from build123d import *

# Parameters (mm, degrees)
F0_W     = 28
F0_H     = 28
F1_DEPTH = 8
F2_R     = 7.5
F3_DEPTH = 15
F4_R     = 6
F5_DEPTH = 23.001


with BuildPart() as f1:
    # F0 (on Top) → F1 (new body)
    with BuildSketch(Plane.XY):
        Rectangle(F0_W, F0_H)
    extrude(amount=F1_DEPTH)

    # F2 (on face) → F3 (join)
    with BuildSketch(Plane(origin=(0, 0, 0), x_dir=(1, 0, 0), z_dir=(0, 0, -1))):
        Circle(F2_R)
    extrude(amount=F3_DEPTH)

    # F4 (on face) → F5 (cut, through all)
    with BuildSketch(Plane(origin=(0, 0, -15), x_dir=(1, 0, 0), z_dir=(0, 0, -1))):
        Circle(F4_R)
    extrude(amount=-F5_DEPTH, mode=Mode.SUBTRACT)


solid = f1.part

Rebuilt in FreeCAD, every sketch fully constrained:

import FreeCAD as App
import Part
import Sketcher

V = App.Vector
Q = App.Units.Quantity

doc = App.newDocument("Part")
body = doc.addObject("PartDesign::Body", "Body")

# Sketch on XY plane
sketch1 = body.newObject("Sketcher::SketchObject", "Sketch")
sketch1.AttachmentSupport = (doc.getObject("XY_Plane"), [""])
sketch1.MapMode = "FlatFace"
sketch1.addGeometry(Part.LineSegment(V(-14, 14, 0), V(-14, -14, 0)), False)
sketch1.addGeometry(Part.LineSegment(V(-14, -14, 0), V(14, -14, 0)), False)
sketch1.addGeometry(Part.LineSegment(V(14, -14, 0), V(14, 14, 0)), False)
sketch1.addGeometry(Part.LineSegment(V(14, 14, 0), V(-14, 14, 0)), False)
sketch1.addConstraint(Sketcher.Constraint("Coincident", 0, 2, 1, 1))
sketch1.addConstraint(Sketcher.Constraint("Coincident", 1, 2, 2, 1))
sketch1.addConstraint(Sketcher.Constraint("Coincident", 2, 2, 3, 1))
sketch1.addConstraint(Sketcher.Constraint("Coincident", 3, 2, 0, 1))
sketch1.addConstraint(Sketcher.Constraint("Vertical", 0))
sketch1.addConstraint(Sketcher.Constraint("Horizontal", 1))
sketch1.addConstraint(Sketcher.Constraint("Vertical", 2))
sketch1.addConstraint(Sketcher.Constraint("Horizontal", 3))
sketch1.addConstraint(Sketcher.Constraint("Symmetric", 0, 2, 2, 2, -1, 1))
sketch1.addConstraint(Sketcher.Constraint("Equal", 3, 0))
sketch1.addConstraint(Sketcher.Constraint("DistanceX", 1, 1, 1, 2, Q("28 mm")))
pad1 = body.newObject("PartDesign::Pad", "Pad")
pad1.Profile = sketch1
pad1.Length = 8

# Sketch on XY plane
sketch2 = body.newObject("Sketcher::SketchObject", "Sketch001")
sketch2.AttachmentSupport = (doc.getObject("XY_Plane"), [""])
sketch2.MapMode = "FlatFace"
sketch2.addGeometry(Part.Circle(V(0, 0, 0), V(0, 0, 1), 8), False)
sketch2.addConstraint(Sketcher.Constraint("Coincident", 0, 3, -1, 1))
sketch2.addConstraint(Sketcher.Constraint("Diameter", 0, Q("15 mm")))
pad2 = body.newObject("PartDesign::Pad", "Pad001")
pad2.Profile = sketch2
pad2.Length = 15
pad2.Reversed = True

# Sketch on XY plane
sketch3 = body.newObject("Sketcher::SketchObject", "Sketch002")
sketch3.AttachmentSupport = (doc.getObject("XY_Plane"), [""])
sketch3.MapMode = "FlatFace"
sketch3.AttachmentOffset = App.Placement(V(0, 0, -15), App.Rotation())
sketch3.addGeometry(Part.Circle(V(0, 0, 0), V(0, 0, 1), 6), False)
sketch3.addConstraint(Sketcher.Constraint("Coincident", 0, 3, -1, 1))
sketch3.addConstraint(Sketcher.Constraint("Diameter", 0, Q("12 mm")))
pocket1 = body.newObject("PartDesign::Pocket", "Pocket")
pocket1.Profile = sketch3
pocket1.Type = "ThroughAll"
pocket1.Reversed = True

doc.recompute()
